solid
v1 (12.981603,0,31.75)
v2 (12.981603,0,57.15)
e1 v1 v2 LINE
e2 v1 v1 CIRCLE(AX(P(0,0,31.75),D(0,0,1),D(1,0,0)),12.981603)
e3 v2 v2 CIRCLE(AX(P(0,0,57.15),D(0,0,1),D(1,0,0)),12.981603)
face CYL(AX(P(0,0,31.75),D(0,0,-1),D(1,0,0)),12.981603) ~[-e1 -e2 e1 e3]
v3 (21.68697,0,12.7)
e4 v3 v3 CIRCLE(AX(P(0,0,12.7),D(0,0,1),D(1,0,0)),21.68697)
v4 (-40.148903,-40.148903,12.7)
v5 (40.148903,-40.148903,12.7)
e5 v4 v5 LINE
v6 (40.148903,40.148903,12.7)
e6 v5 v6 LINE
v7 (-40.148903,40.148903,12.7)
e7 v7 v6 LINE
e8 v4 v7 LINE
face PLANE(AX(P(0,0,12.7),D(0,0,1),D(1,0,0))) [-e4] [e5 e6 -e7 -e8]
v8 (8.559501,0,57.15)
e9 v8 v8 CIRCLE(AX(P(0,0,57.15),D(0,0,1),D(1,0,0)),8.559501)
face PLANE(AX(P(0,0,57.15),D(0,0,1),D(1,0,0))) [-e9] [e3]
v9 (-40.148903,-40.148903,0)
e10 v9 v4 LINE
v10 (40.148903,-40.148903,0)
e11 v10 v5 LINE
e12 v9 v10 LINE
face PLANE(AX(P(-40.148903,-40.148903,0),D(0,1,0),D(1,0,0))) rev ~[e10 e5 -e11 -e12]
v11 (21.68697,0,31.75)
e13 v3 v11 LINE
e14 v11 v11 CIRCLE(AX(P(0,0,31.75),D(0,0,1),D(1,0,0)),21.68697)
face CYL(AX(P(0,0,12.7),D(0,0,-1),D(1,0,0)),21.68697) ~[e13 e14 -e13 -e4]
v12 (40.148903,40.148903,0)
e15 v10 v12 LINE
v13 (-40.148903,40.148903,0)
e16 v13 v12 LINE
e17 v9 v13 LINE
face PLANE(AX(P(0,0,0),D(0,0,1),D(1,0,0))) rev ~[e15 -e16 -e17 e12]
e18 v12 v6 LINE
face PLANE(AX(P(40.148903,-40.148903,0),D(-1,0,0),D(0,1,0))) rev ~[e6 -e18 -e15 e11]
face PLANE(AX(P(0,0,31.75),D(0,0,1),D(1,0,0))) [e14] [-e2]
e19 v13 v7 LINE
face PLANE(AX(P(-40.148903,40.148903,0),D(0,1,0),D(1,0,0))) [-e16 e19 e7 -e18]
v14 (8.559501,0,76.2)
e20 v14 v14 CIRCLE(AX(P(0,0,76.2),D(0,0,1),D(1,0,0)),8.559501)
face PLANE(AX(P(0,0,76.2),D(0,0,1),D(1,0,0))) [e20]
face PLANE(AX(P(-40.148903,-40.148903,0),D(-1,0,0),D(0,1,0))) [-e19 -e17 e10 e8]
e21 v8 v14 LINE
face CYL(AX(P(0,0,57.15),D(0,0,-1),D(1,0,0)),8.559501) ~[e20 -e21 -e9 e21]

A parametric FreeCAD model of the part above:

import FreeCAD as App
import Part
import Sketcher
from FreeCAD import Vector
Q = App.Units.Quantity


def add_polygon(sketch, points):
    """Adds a closed chain of lines whose ends are joined by coincident constraints."""
    first, n = sketch.GeometryCount, len(points)
    for a, b in zip(points, points[1:] + points[:1]):
        sketch.addGeometry(Part.LineSegment(App.Vector(*a, 0), App.Vector(*b, 0)), False)
    for i in range(n):
        sketch.addConstraint(Sketcher.Constraint("Coincident", first + i, 2, first + (i + 1) % n, 1))

doc = App.newDocument("Part")
body = doc.addObject("PartDesign::Body", "Body")

# Sketch on XY plane
sketch1 = body.newObject("Sketcher::SketchObject", "Sketch")
sketch1.AttachmentSupport = (doc.getObject("XY_Plane"), [""])
sketch1.MapMode = "FlatFace"
add_polygon(sketch1, [(-40, 40), (-40, -40), (40, -40), (40, 40)])  # lines 0-3
sketch1.addConstraint(Sketcher.Constraint("Vertical", 0))
sketch1.addConstraint(Sketcher.Constraint("Horizontal", 1))
sketch1.addConstraint(Sketcher.Constraint("Vertical", 2))
sketch1.addConstraint(Sketcher.Constraint("Horizontal", 3))
sketch1.addConstraint(Sketcher.Constraint("Symmetric", 0, 2, 2, 2, -1, 1))
sketch1.addConstraint(Sketcher.Constraint("Equal", 3, 0))
sketch1.addConstraint(Sketcher.Constraint("DistanceX", 1, 1, 1, 2, 80.297806))
pad1 = body.newObject("PartDesign::Pad", "Pad")
pad1.Profile = sketch1
pad1.Length = Q("0.5 in")

# Sketch on XY plane
sketch2 = body.newObject("Sketcher::SketchObject", "Sketch001")
sketch2.AttachmentSupport = (doc.getObject("XY_Plane"), [""])
sketch2.MapMode = "FlatFace"
sketch2.AttachmentOffset = App.Placement(Vector(0, 0, 0.5 * 25.4), App.Rotation())
sketch2.addGeometry(Part.Circle(Vector(0, 0, 0), Vector(0, 0, 1), 22), False)
sketch2.addConstraint(Sketcher.Constraint("Coincident", 0, 3, -1, 1))
sketch2.addConstraint(Sketcher.Constraint("Diameter", 0, 43.37394))
pad2 = body.newObject("PartDesign::Pad", "Pad001")
pad2.Profile = sketch2
pad2.Length = Q("0.75 in")

# Sketch on XY plane
sketch3 = body.newObject("Sketcher::SketchObject", "Sketch002")
sketch3.AttachmentSupport = (doc.getObject("XY_Plane"), [""])
sketch3.MapMode = "FlatFace"
sketch3.AttachmentOffset = App.Placement(Vector(0, 0, 1.25 * 25.4), App.Rotation())
sketch3.addGeometry(Part.Circle(Vector(0, 0, 0), Vector(0, 0, 1), 13), False)
sketch3.addConstraint(Sketcher.Constraint("Coincident", 0, 3, -1, 1))
sketch3.addConstraint(Sketcher.Constraint("Diameter", 0, 25.963206))
pad3 = body.newObject("PartDesign::Pad", "Pad002")
pad3.Profile = sketch3
pad3.Length = Q("1 in")

# Sketch on XY plane
sketch4 = body.newObject("Sketcher::SketchObject", "Sketch003")
sketch4.AttachmentSupport = (doc.getObject("XY_Plane"), [""])
sketch4.MapMode = "FlatFace"
sketch4.AttachmentOffset = App.Placement(Vector(0, 0, 2.25 * 25.4), App.Rotation())
sketch4.addGeometry(Part.Circle(Vector(0, 0, 0), Vector(0, 0, 1), 9), False)
sketch4.addConstraint(Sketcher.Constraint("Coincident", 0, 3, -1, 1))
sketch4.addConstraint(Sketcher.Constraint("Diameter", 0, 17.119002))
pad4 = body.newObject("PartDesign::Pad", "Pad003")
pad4.Profile = sketch4
pad4.Length = Q("0.75 in")

doc.recompute()
